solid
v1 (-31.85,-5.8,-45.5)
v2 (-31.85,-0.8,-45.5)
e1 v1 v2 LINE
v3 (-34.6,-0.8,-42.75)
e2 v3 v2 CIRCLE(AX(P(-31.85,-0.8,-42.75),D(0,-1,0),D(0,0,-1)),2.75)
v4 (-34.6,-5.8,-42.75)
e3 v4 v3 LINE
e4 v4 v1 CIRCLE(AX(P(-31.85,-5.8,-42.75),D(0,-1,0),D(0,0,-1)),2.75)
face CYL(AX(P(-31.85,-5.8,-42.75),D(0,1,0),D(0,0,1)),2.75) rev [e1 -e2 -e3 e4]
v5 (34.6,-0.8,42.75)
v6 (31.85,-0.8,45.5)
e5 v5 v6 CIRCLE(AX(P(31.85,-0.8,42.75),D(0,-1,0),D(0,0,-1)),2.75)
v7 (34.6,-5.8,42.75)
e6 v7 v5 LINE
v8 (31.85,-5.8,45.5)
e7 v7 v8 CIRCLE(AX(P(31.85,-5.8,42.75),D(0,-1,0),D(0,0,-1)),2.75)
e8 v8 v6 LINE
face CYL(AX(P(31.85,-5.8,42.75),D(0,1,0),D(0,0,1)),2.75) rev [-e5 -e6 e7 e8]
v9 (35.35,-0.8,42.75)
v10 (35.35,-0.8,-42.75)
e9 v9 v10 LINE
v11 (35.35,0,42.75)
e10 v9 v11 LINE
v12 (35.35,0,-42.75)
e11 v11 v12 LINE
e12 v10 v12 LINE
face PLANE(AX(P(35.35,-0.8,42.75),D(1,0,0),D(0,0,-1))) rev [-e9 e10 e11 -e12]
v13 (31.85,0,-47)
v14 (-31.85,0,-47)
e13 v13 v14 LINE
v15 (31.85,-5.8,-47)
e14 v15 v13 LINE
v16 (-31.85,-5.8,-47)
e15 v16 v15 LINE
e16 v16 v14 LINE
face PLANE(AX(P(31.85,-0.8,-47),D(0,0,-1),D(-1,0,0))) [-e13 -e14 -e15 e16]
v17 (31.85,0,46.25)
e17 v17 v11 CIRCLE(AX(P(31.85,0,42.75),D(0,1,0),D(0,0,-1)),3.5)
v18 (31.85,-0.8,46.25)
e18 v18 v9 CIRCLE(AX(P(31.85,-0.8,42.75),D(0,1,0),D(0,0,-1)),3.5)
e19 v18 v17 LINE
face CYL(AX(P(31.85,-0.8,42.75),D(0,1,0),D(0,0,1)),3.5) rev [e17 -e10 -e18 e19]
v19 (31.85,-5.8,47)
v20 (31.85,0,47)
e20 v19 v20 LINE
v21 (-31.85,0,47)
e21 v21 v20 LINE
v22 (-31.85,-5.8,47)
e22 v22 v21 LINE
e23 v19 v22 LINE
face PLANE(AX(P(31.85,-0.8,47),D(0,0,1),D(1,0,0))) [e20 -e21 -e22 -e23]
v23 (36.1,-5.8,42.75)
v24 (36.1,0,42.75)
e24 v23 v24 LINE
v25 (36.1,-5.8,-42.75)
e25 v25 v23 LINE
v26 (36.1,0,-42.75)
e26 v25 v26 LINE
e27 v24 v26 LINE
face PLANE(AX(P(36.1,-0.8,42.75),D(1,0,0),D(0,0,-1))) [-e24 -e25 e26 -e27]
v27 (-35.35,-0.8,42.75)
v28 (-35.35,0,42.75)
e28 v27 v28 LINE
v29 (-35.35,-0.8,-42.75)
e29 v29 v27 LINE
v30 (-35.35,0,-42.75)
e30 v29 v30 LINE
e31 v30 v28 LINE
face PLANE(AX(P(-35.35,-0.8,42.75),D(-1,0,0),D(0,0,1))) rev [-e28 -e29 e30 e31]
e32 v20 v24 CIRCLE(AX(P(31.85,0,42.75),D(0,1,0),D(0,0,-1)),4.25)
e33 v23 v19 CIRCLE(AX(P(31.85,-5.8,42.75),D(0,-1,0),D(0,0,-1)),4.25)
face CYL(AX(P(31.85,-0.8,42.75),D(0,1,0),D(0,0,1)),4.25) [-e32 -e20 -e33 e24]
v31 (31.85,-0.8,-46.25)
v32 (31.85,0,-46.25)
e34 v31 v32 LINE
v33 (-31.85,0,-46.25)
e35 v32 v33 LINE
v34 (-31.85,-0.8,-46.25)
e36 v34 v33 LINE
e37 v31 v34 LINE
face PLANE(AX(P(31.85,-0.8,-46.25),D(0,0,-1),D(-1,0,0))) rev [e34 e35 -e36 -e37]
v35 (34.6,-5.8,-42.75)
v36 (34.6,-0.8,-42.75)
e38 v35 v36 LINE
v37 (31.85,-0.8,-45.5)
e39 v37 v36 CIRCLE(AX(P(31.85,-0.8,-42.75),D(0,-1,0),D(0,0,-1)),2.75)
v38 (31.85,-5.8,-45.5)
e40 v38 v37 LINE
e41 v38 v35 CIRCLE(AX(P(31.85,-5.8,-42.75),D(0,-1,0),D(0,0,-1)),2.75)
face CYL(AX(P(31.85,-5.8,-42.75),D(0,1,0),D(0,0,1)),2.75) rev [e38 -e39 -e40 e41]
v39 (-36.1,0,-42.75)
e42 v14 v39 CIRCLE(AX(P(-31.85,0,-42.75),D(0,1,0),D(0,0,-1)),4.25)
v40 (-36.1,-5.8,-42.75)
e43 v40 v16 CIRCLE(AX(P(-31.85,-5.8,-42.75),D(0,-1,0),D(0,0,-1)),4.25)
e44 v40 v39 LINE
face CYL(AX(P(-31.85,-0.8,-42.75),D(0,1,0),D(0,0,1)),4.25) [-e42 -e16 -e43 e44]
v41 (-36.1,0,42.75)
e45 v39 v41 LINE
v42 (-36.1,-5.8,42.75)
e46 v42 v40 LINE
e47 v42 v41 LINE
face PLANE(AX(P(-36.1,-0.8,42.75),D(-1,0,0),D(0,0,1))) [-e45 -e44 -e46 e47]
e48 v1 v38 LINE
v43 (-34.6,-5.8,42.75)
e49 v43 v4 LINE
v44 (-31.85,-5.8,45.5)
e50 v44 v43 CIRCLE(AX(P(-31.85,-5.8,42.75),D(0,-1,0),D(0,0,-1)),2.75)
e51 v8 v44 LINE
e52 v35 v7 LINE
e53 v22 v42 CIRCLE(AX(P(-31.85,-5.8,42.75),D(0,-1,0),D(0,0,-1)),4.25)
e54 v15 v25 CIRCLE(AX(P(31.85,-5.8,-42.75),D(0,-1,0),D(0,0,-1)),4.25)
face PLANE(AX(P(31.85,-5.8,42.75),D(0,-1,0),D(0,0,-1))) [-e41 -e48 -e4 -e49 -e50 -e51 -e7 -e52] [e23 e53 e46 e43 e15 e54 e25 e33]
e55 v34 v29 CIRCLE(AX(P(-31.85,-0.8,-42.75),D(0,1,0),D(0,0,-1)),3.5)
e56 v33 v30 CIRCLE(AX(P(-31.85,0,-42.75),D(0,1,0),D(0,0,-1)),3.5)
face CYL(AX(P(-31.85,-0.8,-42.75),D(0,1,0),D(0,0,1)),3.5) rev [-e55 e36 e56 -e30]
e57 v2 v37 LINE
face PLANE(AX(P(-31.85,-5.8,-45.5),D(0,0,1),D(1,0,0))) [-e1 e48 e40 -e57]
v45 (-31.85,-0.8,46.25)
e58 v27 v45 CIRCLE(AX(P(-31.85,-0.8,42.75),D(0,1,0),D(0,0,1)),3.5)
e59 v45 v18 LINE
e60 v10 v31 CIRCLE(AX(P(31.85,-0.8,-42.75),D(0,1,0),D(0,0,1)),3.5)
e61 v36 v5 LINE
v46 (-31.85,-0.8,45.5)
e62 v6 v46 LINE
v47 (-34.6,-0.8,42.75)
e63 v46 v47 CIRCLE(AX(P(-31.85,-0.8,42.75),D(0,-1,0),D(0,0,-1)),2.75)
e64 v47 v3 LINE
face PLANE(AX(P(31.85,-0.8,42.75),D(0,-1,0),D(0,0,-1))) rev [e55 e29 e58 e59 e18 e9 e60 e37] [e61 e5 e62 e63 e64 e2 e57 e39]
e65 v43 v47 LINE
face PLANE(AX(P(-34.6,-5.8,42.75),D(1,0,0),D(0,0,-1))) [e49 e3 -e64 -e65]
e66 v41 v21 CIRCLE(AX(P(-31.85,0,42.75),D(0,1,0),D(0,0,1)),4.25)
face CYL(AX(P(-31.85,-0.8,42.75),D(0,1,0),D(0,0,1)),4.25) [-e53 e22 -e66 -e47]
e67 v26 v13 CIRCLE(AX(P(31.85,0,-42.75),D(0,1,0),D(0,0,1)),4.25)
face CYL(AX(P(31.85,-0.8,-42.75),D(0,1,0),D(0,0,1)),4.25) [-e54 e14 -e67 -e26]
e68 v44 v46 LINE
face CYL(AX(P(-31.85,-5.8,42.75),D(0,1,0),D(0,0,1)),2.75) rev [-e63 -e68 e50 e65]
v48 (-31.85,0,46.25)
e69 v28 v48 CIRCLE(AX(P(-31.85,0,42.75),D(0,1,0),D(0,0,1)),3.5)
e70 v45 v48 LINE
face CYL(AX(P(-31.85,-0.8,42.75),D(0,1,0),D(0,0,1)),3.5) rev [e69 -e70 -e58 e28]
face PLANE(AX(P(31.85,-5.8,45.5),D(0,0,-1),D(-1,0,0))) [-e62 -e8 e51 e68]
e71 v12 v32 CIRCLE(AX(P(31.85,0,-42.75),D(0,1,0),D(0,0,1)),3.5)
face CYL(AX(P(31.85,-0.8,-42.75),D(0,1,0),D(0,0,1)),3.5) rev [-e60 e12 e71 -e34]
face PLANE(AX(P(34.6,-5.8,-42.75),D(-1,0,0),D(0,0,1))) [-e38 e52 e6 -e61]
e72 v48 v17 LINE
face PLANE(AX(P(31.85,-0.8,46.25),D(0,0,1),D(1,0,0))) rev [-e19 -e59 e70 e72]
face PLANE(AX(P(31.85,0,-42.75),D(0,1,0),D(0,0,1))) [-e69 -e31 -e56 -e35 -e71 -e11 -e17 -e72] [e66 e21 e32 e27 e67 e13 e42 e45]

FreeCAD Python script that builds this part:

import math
import FreeCAD as App
import Part
import Sketcher
from FreeCAD import Vector
Q = App.Units.Quantity

doc = App.newDocument("Part")
body = doc.addObject("PartDesign::Body", "Body")

# Sketch on XZ plane
sketch1 = doc.addObject("Sketcher::SketchObject", "Sketch")
body.addObject(sketch1)
sketch1.AttachmentSupport = (doc.XZ_Plane, [""])
sketch1.MapMode = "FlatFace"
sketch1.addGeometry(Part.LineSegment(Vector(31.9, -47, 0), Vector(-31.9, -47, 0)), False)
sketch1.addGeometry(Part.ArcOfCircle(Part.Circle(Vector(-31.9, -42.8, 0), Vector(0, 0, 1), 4.2), math.radians(180), math.radians(270)), False)
sketch1.addGeometry(Part.LineSegment(Vector(-36.1, -42.8, 0), Vector(-36.1, 42.8, 0)), False)
sketch1.addGeometry(Part.ArcOfCircle(Part.Circle(Vector(-31.9, 42.8, 0), Vector(0, 0, 1), 4.2), math.radians(90), math.radians(180)), False)
sketch1.addGeometry(Part.LineSegment(Vector(-31.9, 47, 0), Vector(31.9, 47, 0)), False)
sketch1.addGeometry(Part.ArcOfCircle(Part.Circle(Vector(31.9, 42.8, 0), Vector(0, 0, 1), 4.2), math.radians(0), math.radians(90)), False)
sketch1.addGeometry(Part.LineSegment(Vector(36.1, 42.8, 0), Vector(36.1, -42.8, 0)), False)
sketch1.addGeometry(Part.ArcOfCircle(Part.Circle(Vector(31.9, -42.8, 0), Vector(0, 0, 1), 4.2), math.radians(-90), math.radians(0)), False)
sketch1.addGeometry(Part.LineSegment(Vector(35.4, -42.8, 0), Vector(35.4, 42.8, 0)), False)
sketch1.addGeometry(Part.ArcOfCircle(Part.Circle(Vector(31.8, 42.7, 0), Vector(0, 0, 1), 3.5), math.radians(0), math.radians(90)), False)
sketch1.addGeometry(Part.LineSegment(Vector(31.9, 46.2, 0), Vector(-31.9, 46.2, 0)), False)
sketch1.addGeometry(Part.ArcOfCircle(Part.Circle(Vector(-31.8, 42.7, 0), Vector(0, 0, 1), 3.5), math.radians(90), math.radians(180)), False)
sketch1.addGeometry(Part.LineSegment(Vector(-35.4, 42.8, 0), Vector(-35.4, -42.8, 0)), False)
sketch1.addGeometry(Part.ArcOfCircle(Part.Circle(Vector(-31.8, -42.7, 0), Vector(0, 0, 1), 3.5), math.radians(-180), math.radians(-90)), False)
sketch1.addGeometry(Part.LineSegment(Vector(-31.9, -46.2, 0), Vector(31.9, -46.2, 0)), False)
sketch1.addGeometry(Part.ArcOfCircle(Part.Circle(Vector(31.8, -42.7, 0), Vector(0, 0, 1), 3.5), math.radians(-90), math.radians(0)), False)
sketch1.addConstraint(Sketcher.Constraint("Tangent", 0, 2, 1, 2))
sketch1.addConstraint(Sketcher.Constraint("Tangent", 1, 1, 2, 1))
sketch1.addConstraint(Sketcher.Constraint("Tangent", 2, 2, 3, 2))
sketch1.addConstraint(Sketcher.Constraint("Tangent", 3, 1, 4, 1))
sketch1.addConstraint(Sketcher.Constraint("Tangent", 4, 2, 5, 2))
sketch1.addConstraint(Sketcher.Constraint("Tangent", 5, 1, 6, 1))
sketch1.addConstraint(Sketcher.Constraint("Tangent", 6, 2, 7, 2))
sketch1.addConstraint(Sketcher.Constraint("Tangent", 7, 1, 0, 1))
sketch1.addConstraint(Sketcher.Constraint("Tangent", 8, 2, 9, 1))
sketch1.addConstraint(Sketcher.Constraint("Tangent", 9, 2, 10, 1))
sketch1.addConstraint(Sketcher.Constraint("Tangent", 10, 2, 11, 1))
sketch1.addConstraint(Sketcher.Constraint("Tangent", 11, 2, 12, 1))
sketch1.addConstraint(Sketcher.Constraint("Tangent", 12, 2, 13, 1))
sketch1.addConstraint(Sketcher.Constraint("Tangent", 13, 2, 14, 1))
sketch1.addConstraint(Sketcher.Constraint("Tangent", 14, 2, 15, 1))
sketch1.addConstraint(Sketcher.Constraint("Tangent", 15, 2, 8, 1))
sketch1.addConstraint(Sketcher.Constraint("Horizontal", 0))
sketch1.addConstraint(Sketcher.Constraint("Vertical", 2))
sketch1.addConstraint(Sketcher.Constraint("Horizontal", 4))
sketch1.addConstraint(Sketcher.Constraint("Vertical", 6))
sketch1.addConstraint(Sketcher.Constraint("Vertical", 8))
sketch1.addConstraint(Sketcher.Constraint("Horizontal", 10))
sketch1.addConstraint(Sketcher.Constraint("Vertical", 12))
sketch1.addConstraint(Sketcher.Constraint("Horizontal", 14))
sketch1.addConstraint(Sketcher.Constraint("Coincident", 9, 3, 5, 3))
sketch1.addConstraint(Sketcher.Constraint("Coincident", 11, 3, 3, 3))
sketch1.addConstraint(Sketcher.Constraint("Coincident", 13, 3, 1, 3))
sketch1.addConstraint(Sketcher.Constraint("Equal", 1, 3))
sketch1.addConstraint(Sketcher.Constraint("Equal", 3, 5))
sketch1.addConstraint(Sketcher.Constraint("Equal", 5, 7))
sketch1.addConstraint(Sketcher.Constraint("Equal", 13, 15))
sketch1.addConstraint(Sketcher.Constraint("Symmetric", 1, 3, 5, 3, -1, 1))
sketch1.addConstraint(Sketcher.Constraint("Radius", 9, Q("3.5 mm")))
sketch1.addConstraint(Sketcher.Constraint("Radius", 1, Q("4.25 mm")))
sketch1.addConstraint(Sketcher.Constraint("DistanceX", 0, 2, 0, 1, Q("63.7 mm")))
sketch1.addConstraint(Sketcher.Constraint("DistanceY", 2, 1, 2, 2, Q("85.5 mm")))
pad1 = doc.addObject("PartDesign::Pad", "Pad")
body.addObject(pad1)
pad1.Profile = sketch1
pad1.Length = 0.8

# Sketch on XZ plane
sketch2 = doc.addObject("Sketcher::SketchObject", "Sketch001")
body.addObject(sketch2)
sketch2.AttachmentSupport = (doc.XZ_Plane, [""])
sketch2.MapMode = "FlatFace"
sketch2.AttachmentOffset = App.Placement(Vector(0, 0, 0.8), App.Rotation())
sketch2.addGeometry(Part.LineSegment(Vector(36.1, -42.8, 0), Vector(36.1, 42.8, 0)), False)
sketch2.addGeometry(Part.ArcOfCircle(Part.Circle(Vector(31.9, 42.8, 0), Vector(0, 0, 1), 4.2), math.radians(0), math.radians(90)), False)
sketch2.addGeometry(Part.LineSegment(Vector(31.9, 47, 0), Vector(-31.9, 47, 0)), False)
sketch2.addGeometry(Part.ArcOfCircle(Part.Circle(Vector(-31.9, 42.8, 0), Vector(0, 0, 1), 4.2), math.radians(90), math.radians(180)), False)
sketch2.addGeometry(Part.LineSegment(Vector(-36.1, 42.8, 0), Vector(-36.1, -42.8, 0)), False)
sketch2.addGeometry(Part.ArcOfCircle(Part.Circle(Vector(-31.9, -42.8, 0), Vector(0, 0, 1), 4.2), math.radians(180), math.radians(270)), False)
sketch2.addGeometry(Part.LineSegment(Vector(-31.9, -47, 0), Vector(31.9, -47, 0)), False)
sketch2.addGeometry(Part.ArcOfCircle(Part.Circle(Vector(31.9, -42.8, 0), Vector(0, 0, 1), 4.2), math.radians(-90), math.radians(0)), False)
sketch2.addGeometry(Part.LineSegment(Vector(-34.6, -42.8, 0), Vector(-34.6, 42.8, 0)), False)
sketch2.addGeometry(Part.ArcOfCircle(Part.Circle(Vector(-31.8, 42.7, 0), Vector(0, 0, 1), 2.8), math.radians(90), math.radians(180)), False)
sketch2.addGeometry(Part.LineSegment(Vector(-31.9, 45.5, 0), Vector(31.9, 45.5, 0)), False)
sketch2.addGeometry(Part.ArcOfCircle(Part.Circle(Vector(31.8, 42.7, 0), Vector(0, 0, 1), 2.8), math.radians(0), math.radians(90)), False)
sketch2.addGeometry(Part.LineSegment(Vector(34.6, 42.8, 0), Vector(34.6, -42.8, 0)), False)
sketch2.addGeometry(Part.ArcOfCircle(Part.Circle(Vector(31.8, -42.7, 0), Vector(0, 0, 1), 2.8), math.radians(-90), math.radians(0)), False)
sketch2.addGeometry(Part.LineSegment(Vector(31.9, -45.5, 0), Vector(-31.9, -45.5, 0)), False)
sketch2.addGeometry(Part.ArcOfCircle(Part.Circle(Vector(-31.8, -42.7, 0), Vector(0, 0, 1), 2.8), math.radians(-180), math.radians(-90)), False)
sketch2.addConstraint(Sketcher.Constraint("Tangent", 0, 2, 1, 1))
sketch2.addConstraint(Sketcher.Constraint("Tangent", 1, 2, 2, 1))
sketch2.addConstraint(Sketcher.Constraint("Tangent", 2, 2, 3, 1))
sketch2.addConstraint(Sketcher.Constraint("Tangent", 3, 2, 4, 1))
sketch2.addConstraint(Sketcher.Constraint("Tangent", 4, 2, 5, 1))
sketch2.addConstraint(Sketcher.Constraint("Tangent", 5, 2, 6, 1))
sketch2.addConstraint(Sketcher.Constraint("Tangent", 6, 2, 7, 1))
sketch2.addConstraint(Sketcher.Constraint("Tangent", 7, 2, 0, 1))
sketch2.addConstraint(Sketcher.Constraint("Tangent", 8, 2, 9, 2))
sketch2.addConstraint(Sketcher.Constraint("Tangent", 9, 1, 10, 1))
sketch2.addConstraint(Sketcher.Constraint("Tangent", 10, 2, 11, 2))
sketch2.addConstraint(Sketcher.Constraint("Tangent", 11, 1, 12, 1))
sketch2.addConstraint(Sketcher.Constraint("Tangent", 12, 2, 13, 2))
sketch2.addConstraint(Sketcher.Constraint("Tangent", 13, 1, 14, 1))
sketch2.addConstraint(Sketcher.Constraint("Tangent", 14, 2, 15, 2))
sketch2.addConstraint(Sketcher.Constraint("Tangent", 15, 1, 8, 1))
sketch2.addConstraint(Sketcher.Constraint("Vertical", 0))
sketch2.addConstraint(Sketcher.Constraint("Horizontal", 2))
sketch2.addConstraint(Sketcher.Constraint("Vertical", 4))
sketch2.addConstraint(Sketcher.Constraint("Horizontal", 6))
sketch2.addConstraint(Sketcher.Constraint("Vertical", 8))
sketch2.addConstraint(Sketcher.Constraint("Horizontal", 10))
sketch2.addConstraint(Sketcher.Constraint("Vertical", 12))
sketch2.addConstraint(Sketcher.Constraint("Horizontal", 14))
sketch2.addConstraint(Sketcher.Constraint("Coincident", 9, 3, 3, 3))
sketch2.addConstraint(Sketcher.Constraint("Coincident", 11, 3, 1, 3))
sketch2.addConstraint(Sketcher.Constraint("Coincident", 13, 3, 7, 3))
sketch2.addConstraint(Sketcher.Constraint("Equal", 1, 3))
sketch2.addConstraint(Sketcher.Constraint("Equal", 3, 5))
sketch2.addConstraint(Sketcher.Constraint("Equal", 5, 7))
sketch2.addConstraint(Sketcher.Constraint("Equal", 13, 15))
sketch2.addConstraint(Sketcher.Constraint("Symmetric", 1, 3, 5, 3, -1, 1))
sketch2.addConstraint(Sketcher.Constraint("Radius", 1, Q("4.25 mm")))
sketch2.addConstraint(Sketcher.Constraint("Radius", 9, Q("2.75 mm")))
sketch2.addConstraint(Sketcher.Constraint("DistanceX", 2, 2, 2, 1, Q("63.7 mm")))
sketch2.addConstraint(Sketcher.Constraint("DistanceY", 0, 1, 0, 2, Q("85.5 mm")))
pad2 = doc.addObject("PartDesign::Pad", "Pad001")
body.addObject(pad2)
pad2.Profile = sketch2
pad2.Length = 5

doc.recompute()
